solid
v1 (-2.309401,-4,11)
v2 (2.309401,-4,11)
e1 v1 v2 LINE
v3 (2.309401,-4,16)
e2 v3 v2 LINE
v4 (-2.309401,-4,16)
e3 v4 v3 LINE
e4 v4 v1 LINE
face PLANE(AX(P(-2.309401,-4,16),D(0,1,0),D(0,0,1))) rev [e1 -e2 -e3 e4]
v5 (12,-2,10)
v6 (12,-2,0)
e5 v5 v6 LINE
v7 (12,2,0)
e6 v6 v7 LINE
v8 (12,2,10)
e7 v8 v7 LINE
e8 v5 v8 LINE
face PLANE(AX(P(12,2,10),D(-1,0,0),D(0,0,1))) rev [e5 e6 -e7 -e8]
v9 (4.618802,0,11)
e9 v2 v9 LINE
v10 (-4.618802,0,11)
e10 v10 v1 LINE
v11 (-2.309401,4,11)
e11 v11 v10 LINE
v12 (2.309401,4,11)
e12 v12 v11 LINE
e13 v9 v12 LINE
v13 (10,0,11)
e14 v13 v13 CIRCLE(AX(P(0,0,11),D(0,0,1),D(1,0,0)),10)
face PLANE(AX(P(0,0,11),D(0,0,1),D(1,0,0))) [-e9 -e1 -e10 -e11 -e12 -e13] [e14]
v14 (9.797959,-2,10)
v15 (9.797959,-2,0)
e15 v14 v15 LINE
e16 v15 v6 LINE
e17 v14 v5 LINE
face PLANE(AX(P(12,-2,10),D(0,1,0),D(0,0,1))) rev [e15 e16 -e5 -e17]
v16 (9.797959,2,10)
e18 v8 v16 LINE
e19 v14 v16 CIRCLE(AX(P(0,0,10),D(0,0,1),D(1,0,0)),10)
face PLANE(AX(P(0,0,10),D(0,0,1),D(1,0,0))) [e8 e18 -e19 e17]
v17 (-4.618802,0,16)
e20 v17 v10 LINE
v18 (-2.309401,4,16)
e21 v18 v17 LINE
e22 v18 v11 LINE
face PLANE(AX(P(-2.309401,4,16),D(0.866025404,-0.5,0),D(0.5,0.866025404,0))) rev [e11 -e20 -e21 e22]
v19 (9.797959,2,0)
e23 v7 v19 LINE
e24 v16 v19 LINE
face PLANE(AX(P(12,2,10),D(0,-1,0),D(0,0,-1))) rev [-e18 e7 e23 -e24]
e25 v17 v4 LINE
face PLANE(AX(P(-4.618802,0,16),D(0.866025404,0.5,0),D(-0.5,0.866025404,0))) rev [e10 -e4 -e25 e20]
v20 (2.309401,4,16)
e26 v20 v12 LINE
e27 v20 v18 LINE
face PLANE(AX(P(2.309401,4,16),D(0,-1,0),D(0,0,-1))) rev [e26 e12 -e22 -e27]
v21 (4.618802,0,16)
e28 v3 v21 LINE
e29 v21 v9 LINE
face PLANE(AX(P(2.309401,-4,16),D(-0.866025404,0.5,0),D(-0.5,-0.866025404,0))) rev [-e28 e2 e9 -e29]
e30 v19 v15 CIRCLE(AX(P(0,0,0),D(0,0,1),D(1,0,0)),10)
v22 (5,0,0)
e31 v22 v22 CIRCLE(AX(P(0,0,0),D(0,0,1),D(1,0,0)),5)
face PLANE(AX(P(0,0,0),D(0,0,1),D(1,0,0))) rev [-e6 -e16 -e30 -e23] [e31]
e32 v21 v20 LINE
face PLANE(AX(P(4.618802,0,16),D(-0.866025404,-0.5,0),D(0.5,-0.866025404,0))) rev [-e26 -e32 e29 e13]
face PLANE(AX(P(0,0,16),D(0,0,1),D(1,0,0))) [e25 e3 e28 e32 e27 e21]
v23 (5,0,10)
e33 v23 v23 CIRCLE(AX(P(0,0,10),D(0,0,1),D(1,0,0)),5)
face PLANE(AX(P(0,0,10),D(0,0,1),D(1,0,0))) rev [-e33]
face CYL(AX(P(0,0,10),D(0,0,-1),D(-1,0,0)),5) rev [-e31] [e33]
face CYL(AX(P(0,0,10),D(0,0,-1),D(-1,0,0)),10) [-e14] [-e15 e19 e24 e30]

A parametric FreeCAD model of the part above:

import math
import FreeCAD as App
import Part
import Sketcher

V = App.Vector
Q = App.Units.Quantity

doc = App.newDocument("Part")
body = doc.addObject("PartDesign::Body", "Body")

# Sketch on XY plane
sketch1 = body.newObject("Sketcher::SketchObject", "Sketch")
sketch1.AttachmentSupport = (doc.getObject("XY_Plane"), [""])
sketch1.MapMode = "FlatFace"
sketch1.addGeometry(Part.LineSegment(V(12, -2, 0), V(12, 2, 0)), False)
sketch1.addGeometry(Part.LineSegment(V(12, 2, 0), V(9.8, 2, 0)), False)
sketch1.addGeometry(Part.ArcOfCircle(Part.Circle(V(0, 0, 0), V(0, 0, 1), 10), math.radians(12), math.radians(348)), False)
sketch1.addGeometry(Part.LineSegment(V(9.8, -2, 0), V(12, -2, 0)), False)
sketch1.addGeometry(Part.Circle(V(0, 0, 0), V(0, 0, 1), 5), False)
sketch1.addConstraint(Sketcher.Constraint("Coincident", 0, 2, 1, 1))
sketch1.addConstraint(Sketcher.Constraint("Coincident", 1, 2, 2, 1))
sketch1.addConstraint(Sketcher.Constraint("Coincident", 2, 2, 3, 1))
sketch1.addConstraint(Sketcher.Constraint("Coincident", 3, 2, 0, 1))
sketch1.addConstraint(Sketcher.Constraint("Vertical", 0))
sketch1.addConstraint(Sketcher.Constraint("Horizontal", 1))
sketch1.addConstraint(Sketcher.Constraint("Horizontal", 3))
sketch1.addConstraint(Sketcher.Constraint("Coincident", 2, 3, -1, 1))
sketch1.addConstraint(Sketcher.Constraint("Coincident", 4, 3, -1, 1))
sketch1.addConstraint(Sketcher.Constraint("Vertical", 1, 2, 2, 2))
sketch1.addConstraint(Sketcher.Constraint("Diameter", 4, 10.0))
sketch1.addConstraint(Sketcher.Constraint("Radius", 2, 10.0))
sketch1.addConstraint(Sketcher.Constraint("DistanceY", 0, 1, 0, 2, 4.0))
sketch1.addConstraint(Sketcher.Constraint("DistanceX", -1, 1, 0, 2, 12.0))
pad1 = body.newObject("PartDesign::Pad", "Pad")
pad1.Profile = sketch1
pad1.Length = 10

# Sketch on XY plane
sketch2 = body.newObject("Sketcher::SketchObject", "Sketch001")
sketch2.AttachmentSupport = (doc.getObject("XY_Plane"), [""])
sketch2.MapMode = "FlatFace"
sketch2.AttachmentOffset = App.Placement(V(0, 0, 10), App.Rotation())
sketch2.addGeometry(Part.Circle(V(0, 0, 0), V(0, 0, 1), 10), False)
sketch2.addConstraint(Sketcher.Constraint("Coincident", 0, 3, -1, 1))
sketch2.addConstraint(Sketcher.Constraint("Diameter", 0, 20.0))
pad2 = body.newObject("PartDesign::Pad", "Pad001")
pad2.Profile = sketch2
pad2.Length = 1

# Sketch on XY plane
sketch3 = body.newObject("Sketcher::SketchObject", "Sketch002")
sketch3.AttachmentSupport = (doc.getObject("XY_Plane"), [""])
sketch3.MapMode = "FlatFace"
sketch3.AttachmentOffset = App.Placement(V(0, 0, 11), App.Rotation())
sketch3.addGeometry(Part.LineSegment(V(4.6, 0, 0), V(2.3, 4, 0)), False)
sketch3.addGeometry(Part.LineSegment(V(2.3, 4, 0), V(-2.3, 4, 0)), False)
sketch3.addGeometry(Part.LineSegment(V(-2.3, 4, 0), V(-4.6, 0, 0)), False)
sketch3.addGeometry(Part.LineSegment(V(-4.6, 0, 0), V(-2.3, -4, 0)), False)
sketch3.addGeometry(Part.LineSegment(V(-2.3, -4, 0), V(2.3, -4, 0)), False)
sketch3.addGeometry(Part.LineSegment(V(2.3, -4, 0), V(4.6, 0, 0)), False)
sketch3.addConstraint(Sketcher.Constraint("Coincident", 0, 2, 1, 1))
sketch3.addConstraint(Sketcher.Constraint("Coincident", 1, 2, 2, 1))
sketch3.addConstraint(Sketcher.Constraint("Coincident", 2, 2, 3, 1))
sketch3.addConstraint(Sketcher.Constraint("Coincident", 3, 2, 4, 1))
sketch3.addConstraint(Sketcher.Constraint("Coincident", 4, 2, 5, 1))
sketch3.addConstraint(Sketcher.Constraint("Coincident", 5, 2, 0, 1))
sketch3.addConstraint(Sketcher.Constraint("Horizontal", 1))
sketch3.addConstraint(Sketcher.Constraint("Horizontal", 4))
sketch3.addConstraint(Sketcher.Constraint("Symmetric", 0, 2, 3, 2, -1, 1))
sketch3.addConstraint(Sketcher.Constraint("Symmetric", 2, 2, 5, 2, -1, 1))
sketch3.addConstraint(Sketcher.Constraint("PointOnObject", 2, 2, -1))
sketch3.addConstraint(Sketcher.Constraint("Parallel", 2, 5))
sketch3.addConstraint(Sketcher.Constraint("Vertical", 1, 2, 3, 2))
sketch3.addConstraint(Sketcher.Constraint("Angle", 0, Q("120 deg")))
sketch3.addConstraint(Sketcher.Constraint("DistanceY", -1, 1, 0, 2, 4.0))
sketch3.addConstraint(Sketcher.Constraint("DistanceX", -1, 1, 0, 2, 2.309401))
pad3 = body.newObject("PartDesign::Pad", "Pad002")
pad3.Profile = sketch3
pad3.Length = 5

doc.recompute()
